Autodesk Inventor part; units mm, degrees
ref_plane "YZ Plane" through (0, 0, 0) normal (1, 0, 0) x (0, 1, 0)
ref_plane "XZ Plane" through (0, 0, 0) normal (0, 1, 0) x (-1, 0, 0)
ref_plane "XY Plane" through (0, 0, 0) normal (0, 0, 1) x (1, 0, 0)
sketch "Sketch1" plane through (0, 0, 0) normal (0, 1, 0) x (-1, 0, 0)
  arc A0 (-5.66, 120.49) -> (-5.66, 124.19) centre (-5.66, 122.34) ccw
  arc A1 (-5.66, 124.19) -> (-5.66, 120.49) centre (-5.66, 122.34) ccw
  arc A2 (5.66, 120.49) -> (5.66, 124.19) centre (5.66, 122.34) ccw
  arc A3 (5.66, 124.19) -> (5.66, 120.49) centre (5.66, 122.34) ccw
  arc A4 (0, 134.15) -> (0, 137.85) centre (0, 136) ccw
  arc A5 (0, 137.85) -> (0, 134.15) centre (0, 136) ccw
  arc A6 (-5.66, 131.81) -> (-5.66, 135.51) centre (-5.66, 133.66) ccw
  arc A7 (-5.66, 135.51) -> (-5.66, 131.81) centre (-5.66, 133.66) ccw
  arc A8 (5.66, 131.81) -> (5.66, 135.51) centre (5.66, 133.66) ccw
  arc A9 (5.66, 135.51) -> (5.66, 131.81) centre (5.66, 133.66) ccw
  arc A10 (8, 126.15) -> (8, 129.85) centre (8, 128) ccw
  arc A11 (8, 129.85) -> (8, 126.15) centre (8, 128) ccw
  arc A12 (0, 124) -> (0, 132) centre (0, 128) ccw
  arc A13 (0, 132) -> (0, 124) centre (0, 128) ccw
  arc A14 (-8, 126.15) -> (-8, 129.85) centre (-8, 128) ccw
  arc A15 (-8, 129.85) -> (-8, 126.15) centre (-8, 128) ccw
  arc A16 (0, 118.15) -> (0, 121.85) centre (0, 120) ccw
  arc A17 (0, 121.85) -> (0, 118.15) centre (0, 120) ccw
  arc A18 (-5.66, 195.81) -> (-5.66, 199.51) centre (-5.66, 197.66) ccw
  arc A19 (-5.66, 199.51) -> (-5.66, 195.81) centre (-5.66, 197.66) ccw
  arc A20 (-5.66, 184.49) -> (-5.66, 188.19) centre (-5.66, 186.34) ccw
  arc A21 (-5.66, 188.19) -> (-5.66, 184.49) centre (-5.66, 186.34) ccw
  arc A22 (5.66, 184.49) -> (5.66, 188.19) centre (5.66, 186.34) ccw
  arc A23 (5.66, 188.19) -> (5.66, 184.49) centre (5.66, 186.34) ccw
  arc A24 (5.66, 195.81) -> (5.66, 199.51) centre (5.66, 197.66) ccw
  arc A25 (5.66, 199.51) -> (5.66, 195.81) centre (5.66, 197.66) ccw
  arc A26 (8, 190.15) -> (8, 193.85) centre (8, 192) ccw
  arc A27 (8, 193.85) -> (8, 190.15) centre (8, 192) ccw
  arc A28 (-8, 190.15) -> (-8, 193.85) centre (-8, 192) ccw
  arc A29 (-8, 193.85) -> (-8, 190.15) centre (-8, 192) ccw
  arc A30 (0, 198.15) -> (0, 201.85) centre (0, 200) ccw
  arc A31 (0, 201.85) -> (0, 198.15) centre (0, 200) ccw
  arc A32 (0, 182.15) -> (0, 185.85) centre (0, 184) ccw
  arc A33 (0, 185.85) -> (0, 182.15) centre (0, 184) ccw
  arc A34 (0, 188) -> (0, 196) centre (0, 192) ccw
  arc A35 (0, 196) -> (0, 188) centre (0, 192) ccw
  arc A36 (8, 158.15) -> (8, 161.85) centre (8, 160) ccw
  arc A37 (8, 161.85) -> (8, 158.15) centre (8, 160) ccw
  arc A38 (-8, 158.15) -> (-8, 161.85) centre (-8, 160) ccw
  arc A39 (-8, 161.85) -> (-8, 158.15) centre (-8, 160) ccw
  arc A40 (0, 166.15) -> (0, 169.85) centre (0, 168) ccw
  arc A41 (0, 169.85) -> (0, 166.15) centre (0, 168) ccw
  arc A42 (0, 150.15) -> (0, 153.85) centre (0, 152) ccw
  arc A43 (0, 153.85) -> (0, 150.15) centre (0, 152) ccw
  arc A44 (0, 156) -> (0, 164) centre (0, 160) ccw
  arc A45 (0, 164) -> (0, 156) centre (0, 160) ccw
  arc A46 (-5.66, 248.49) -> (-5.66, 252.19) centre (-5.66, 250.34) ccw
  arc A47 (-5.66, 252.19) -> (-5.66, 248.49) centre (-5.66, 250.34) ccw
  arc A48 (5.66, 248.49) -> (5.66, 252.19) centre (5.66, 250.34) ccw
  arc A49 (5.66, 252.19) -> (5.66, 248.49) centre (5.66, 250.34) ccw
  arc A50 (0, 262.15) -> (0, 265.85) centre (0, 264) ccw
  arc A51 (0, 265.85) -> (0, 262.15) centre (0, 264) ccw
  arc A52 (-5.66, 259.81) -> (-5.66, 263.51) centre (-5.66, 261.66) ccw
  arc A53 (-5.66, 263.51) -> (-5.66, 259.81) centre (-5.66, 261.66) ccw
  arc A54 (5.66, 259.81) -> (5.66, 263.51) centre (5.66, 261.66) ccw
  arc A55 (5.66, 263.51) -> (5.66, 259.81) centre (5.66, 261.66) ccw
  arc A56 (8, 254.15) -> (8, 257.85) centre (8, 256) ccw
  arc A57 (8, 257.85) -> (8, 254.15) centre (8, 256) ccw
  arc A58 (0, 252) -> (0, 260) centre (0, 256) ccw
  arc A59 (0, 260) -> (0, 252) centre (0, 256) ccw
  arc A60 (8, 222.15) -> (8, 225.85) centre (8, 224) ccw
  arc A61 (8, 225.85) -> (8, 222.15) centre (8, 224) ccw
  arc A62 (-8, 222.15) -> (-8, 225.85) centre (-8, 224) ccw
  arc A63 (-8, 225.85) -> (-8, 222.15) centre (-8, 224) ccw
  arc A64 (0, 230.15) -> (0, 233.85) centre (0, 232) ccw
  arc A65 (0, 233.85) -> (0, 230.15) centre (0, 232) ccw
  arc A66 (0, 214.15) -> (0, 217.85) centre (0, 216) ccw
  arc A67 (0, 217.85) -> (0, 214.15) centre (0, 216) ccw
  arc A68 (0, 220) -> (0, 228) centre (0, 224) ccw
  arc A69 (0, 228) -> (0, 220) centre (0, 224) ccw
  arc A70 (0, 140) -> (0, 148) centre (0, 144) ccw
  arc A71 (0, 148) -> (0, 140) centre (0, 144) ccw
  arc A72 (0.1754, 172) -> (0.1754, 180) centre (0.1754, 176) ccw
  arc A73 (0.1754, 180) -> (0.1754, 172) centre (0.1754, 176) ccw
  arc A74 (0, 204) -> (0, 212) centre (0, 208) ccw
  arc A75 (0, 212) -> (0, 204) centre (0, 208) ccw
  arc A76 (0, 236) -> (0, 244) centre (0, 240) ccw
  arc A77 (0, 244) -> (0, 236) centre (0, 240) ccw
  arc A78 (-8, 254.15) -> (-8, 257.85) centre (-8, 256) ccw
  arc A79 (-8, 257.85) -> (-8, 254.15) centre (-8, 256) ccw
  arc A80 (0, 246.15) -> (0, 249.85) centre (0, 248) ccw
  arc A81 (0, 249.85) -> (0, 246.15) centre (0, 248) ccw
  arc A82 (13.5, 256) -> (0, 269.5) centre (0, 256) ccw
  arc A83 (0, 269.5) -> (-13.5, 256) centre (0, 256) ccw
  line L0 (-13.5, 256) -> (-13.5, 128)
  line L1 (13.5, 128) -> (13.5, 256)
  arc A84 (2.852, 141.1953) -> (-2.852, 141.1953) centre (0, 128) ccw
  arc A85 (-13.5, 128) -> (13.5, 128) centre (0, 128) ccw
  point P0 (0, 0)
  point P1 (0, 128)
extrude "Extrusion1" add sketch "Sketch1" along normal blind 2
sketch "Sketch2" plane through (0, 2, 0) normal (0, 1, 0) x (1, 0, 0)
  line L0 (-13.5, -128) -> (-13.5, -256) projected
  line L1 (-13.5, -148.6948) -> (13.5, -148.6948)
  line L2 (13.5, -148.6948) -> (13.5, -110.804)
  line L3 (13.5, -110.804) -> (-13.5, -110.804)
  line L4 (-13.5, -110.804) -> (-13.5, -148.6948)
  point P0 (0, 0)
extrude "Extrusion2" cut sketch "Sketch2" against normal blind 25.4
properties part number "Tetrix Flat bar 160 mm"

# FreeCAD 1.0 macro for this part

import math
import FreeCAD as App
import Part
import Sketcher
from FreeCAD import Vector


def add_polygon(sketch, points):
    """Adds a closed chain of lines whose ends are joined by coincident constraints."""
    first, n = sketch.GeometryCount, len(points)
    for a, b in zip(points, points[1:] + points[:1]):
        sketch.addGeometry(Part.LineSegment(App.Vector(*a, 0), App.Vector(*b, 0)), False)
    for i in range(n):
        sketch.addConstraint(Sketcher.Constraint("Coincident", first + i, 2, first + (i + 1) % n, 1))

doc = App.newDocument("Part")
body = doc.addObject("PartDesign::Body", "Body")

# Sketch on XZ plane
sketch1 = body.newObject("Sketcher::SketchObject", "Sketch")
sketch1.AttachmentSupport = (doc.getObject("XZ_Plane"), [""])
sketch1.MapMode = "FlatFace"
sketch1.addGeometry(Part.LineSegment(Vector(-13.5, 128, 0), Vector(-13.5, 256, 0)), False)
sketch1.addGeometry(Part.ArcOfCircle(Part.Circle(Vector(0, 256, 0), Vector(0, 0, 1), 13.5), math.radians(0), math.radians(180)), False)
sketch1.addGeometry(Part.LineSegment(Vector(13.5, 256, 0), Vector(13.5, 128, 0)), False)
sketch1.addGeometry(Part.ArcOfCircle(Part.Circle(Vector(0, 128, 0), Vector(0, 0, 1), 13.5), math.radians(180), math.radians(360)), False)
sketch1.addGeometry(Part.Circle(Vector(8, 128, 0), Vector(0, 0, 1), 1.8), False)
sketch1.addGeometry(Part.Circle(Vector(5.7, 122.3, 0), Vector(0, 0, 1), 1.8), False)
sketch1.addGeometry(Part.Circle(Vector(5.7, 133.7, 0), Vector(0, 0, 1), 1.8), False)
sketch1.addGeometry(Part.Circle(Vector(8, 160, 0), Vector(0, 0, 1), 1.8), False)
sketch1.addGeometry(Part.Circle(Vector(5.7, 186.3, 0), Vector(0, 0, 1), 1.8), False)
sketch1.addGeometry(Part.Circle(Vector(0, 120, 0), Vector(0, 0, 1), 1.8), False)
sketch1.addGeometry(Part.Circle(Vector(0, 128, 0), Vector(0, 0, 1), 4), False)
sketch1.addGeometry(Part.Circle(Vector(-5.7, 122.3, 0), Vector(0, 0, 1), 1.8), False)
sketch1.addGeometry(Part.Circle(Vector(-5.7, 133.7, 0), Vector(0, 0, 1), 1.8), False)
sketch1.addGeometry(Part.Circle(Vector(0, 136, 0), Vector(0, 0, 1), 1.8), False)
sketch1.addGeometry(Part.Circle(Vector(0, 144, 0), Vector(0, 0, 1), 4), False)
sketch1.addGeometry(Part.Circle(Vector(0, 152, 0), Vector(0, 0, 1), 1.8), False)
sketch1.addGeometry(Part.Circle(Vector(-8, 128, 0), Vector(0, 0, 1), 1.8), False)
sketch1.addGeometry(Part.Circle(Vector(0, 160, 0), Vector(0, 0, 1), 4), False)
sketch1.addGeometry(Part.Circle(Vector(0, 168, 0), Vector(0, 0, 1), 1.8), False)
sketch1.addGeometry(Part.Circle(Vector(-0.2, 176, 0), Vector(0, 0, 1), 4), False)
sketch1.addGeometry(Part.Circle(Vector(0, 184, 0), Vector(0, 0, 1), 1.8), False)
sketch1.addGeometry(Part.Circle(Vector(-5.7, 186.3, 0), Vector(0, 0, 1), 1.8), False)
sketch1.addGeometry(Part.Circle(Vector(-8, 160, 0), Vector(0, 0, 1), 1.8), False)
sketch1.addGeometry(Part.Circle(Vector(8, 192, 0), Vector(0, 0, 1), 1.8), False)
sketch1.addGeometry(Part.Circle(Vector(8, 224, 0), Vector(0, 0, 1), 1.8), False)
sketch1.addGeometry(Part.Circle(Vector(5.7, 197.7, 0), Vector(0, 0, 1), 1.8), False)
sketch1.addGeometry(Part.Circle(Vector(8, 256, 0), Vector(0, 0, 1), 1.8), False)
sketch1.addGeometry(Part.Circle(Vector(5.7, 250.3, 0), Vector(0, 0, 1), 1.8), False)
sketch1.addGeometry(Part.Circle(Vector(5.7, 261.7, 0), Vector(0, 0, 1), 1.9), False)
sketch1.addGeometry(Part.Circle(Vector(0, 192, 0), Vector(0, 0, 1), 4), False)
sketch1.addGeometry(Part.Circle(Vector(0, 200, 0), Vector(0, 0, 1), 1.8), False)
sketch1.addGeometry(Part.Circle(Vector(0, 208, 0), Vector(0, 0, 1), 4), False)
sketch1.addGeometry(Part.Circle(Vector(-5.7, 197.7, 0), Vector(0, 0, 1), 1.8), False)
sketch1.addGeometry(Part.Circle(Vector(0, 216, 0), Vector(0, 0, 1), 1.8), False)
sketch1.addGeometry(Part.Circle(Vector(0, 224, 0), Vector(0, 0, 1), 4), False)
sketch1.addGeometry(Part.Circle(Vector(-8, 192, 0), Vector(0, 0, 1), 1.8), False)
sketch1.addGeometry(Part.Circle(Vector(-8, 224, 0), Vector(0, 0, 1), 1.8), False)
sketch1.addGeometry(Part.Circle(Vector(0, 232, 0), Vector(0, 0, 1), 1.8), False)
sketch1.addGeometry(Part.Circle(Vector(0, 240, 0), Vector(0, 0, 1), 4), False)
sketch1.addGeometry(Part.Circle(Vector(0, 248, 0), Vector(0, 0, 1), 1.8), False)
sketch1.addGeometry(Part.Circle(Vector(0, 256, 0), Vector(0, 0, 1), 4), False)
sketch1.addGeometry(Part.Circle(Vector(0, 264, 0), Vector(0, 0, 1), 1.9), False)
sketch1.addGeometry(Part.Circle(Vector(-5.7, 250.3, 0), Vector(0, 0, 1), 1.8), False)
sketch1.addGeometry(Part.Circle(Vector(-5.7, 261.7, 0), Vector(0, 0, 1), 1.9), False)
sketch1.addGeometry(Part.Circle(Vector(-8, 256, 0), Vector(0, 0, 1), 1.8), False)
sketch1.addConstraint(Sketcher.Constraint("Tangent", 0, 2, 1, 2))
sketch1.addConstraint(Sketcher.Constraint("Tangent", 1, 1, 2, 1))
sketch1.addConstraint(Sketcher.Constraint("Tangent", 2, 2, 3, 2))
sketch1.addConstraint(Sketcher.Constraint("Tangent", 3, 1, 0, 1))
sketch1.addConstraint(Sketcher.Constraint("Vertical", 0))
sketch1.addConstraint(Sketcher.Constraint("Vertical", 2))
sketch1.addConstraint(Sketcher.Constraint("Coincident", 10, 3, 3, 3))
sketch1.addConstraint(Sketcher.Constraint("Coincident", 40, 3, 1, 3))
sketch1.addConstraint(Sketcher.Constraint("Equal", 4, 5))
sketch1.addConstraint(Sketcher.Constraint("Equal", 5, 6))
sketch1.addConstraint(Sketcher.Constraint("Equal", 6, 7))
sketch1.addConstraint(Sketcher.Constraint("Equal", 7, 8))
sketch1.addConstraint(Sketcher.Constraint("Equal", 8, 9))
sketch1.addConstraint(Sketcher.Constraint("Equal", 9, 11))
sketch1.addConstraint(Sketcher.Constraint("Equal", 11, 12))
sketch1.addConstraint(Sketcher.Constraint("Equal", 12, 13))
sketch1.addConstraint(Sketcher.Constraint("Equal", 10, 14))
sketch1.addConstraint(Sketcher.Constraint("Equal", 13, 15))
sketch1.addConstraint(Sketcher.Constraint("Equal", 15, 16))
sketch1.addConstraint(Sketcher.Constraint("Equal", 14, 17))
sketch1.addConstraint(Sketcher.Constraint("Equal", 16, 18))
sketch1.addConstraint(Sketcher.Constraint("Equal", 17, 19))
sketch1.addConstraint(Sketcher.Constraint("Equal", 18, 20))
sketch1.addConstraint(Sketcher.Constraint("Equal", 20, 21))
sketch1.addConstraint(Sketcher.Constraint("Equal", 21, 22))
sketch1.addConstraint(Sketcher.Constraint("Equal", 22, 23))
sketch1.addConstraint(Sketcher.Constraint("Equal", 23, 24))
sketch1.addConstraint(Sketcher.Constraint("Equal", 24, 25))
sketch1.addConstraint(Sketcher.Constraint("Equal", 25, 26))
sketch1.addConstraint(Sketcher.Constraint("Equal", 26, 27))
sketch1.addConstraint(Sketcher.Constraint("Equal", 27, 28))
sketch1.addConstraint(Sketcher.Constraint("Equal", 19, 29))
sketch1.addConstraint(Sketcher.Constraint("Equal", 28, 30))
sketch1.addConstraint(Sketcher.Constraint("Equal", 29, 31))
sketch1.addConstraint(Sketcher.Constraint("Equal", 30, 32))
sketch1.addConstraint(Sketcher.Constraint("Equal", 32, 33))
sketch1.addConstraint(Sketcher.Constraint("Equal", 31, 34))
sketch1.addConstraint(Sketcher.Constraint("Equal", 33, 35))
sketch1.addConstraint(Sketcher.Constraint("Equal", 35, 36))
sketch1.addConstraint(Sketcher.Constraint("Equal", 36, 37))
sketch1.addConstraint(Sketcher.Constraint("Equal", 34, 38))
sketch1.addConstraint(Sketcher.Constraint("Equal", 37, 39))
sketch1.addConstraint(Sketcher.Constraint("Equal", 38, 40))
sketch1.addConstraint(Sketcher.Constraint("Equal", 39, 41))
sketch1.addConstraint(Sketcher.Constraint("Equal", 41, 42))
sketch1.addConstraint(Sketcher.Constraint("Equal", 42, 43))
sketch1.addConstraint(Sketcher.Constraint("Equal", 43, 44))
sketch1.addConstraint(Sketcher.Constraint("Symmetric", 5, 3, 11, 3, -2))
sketch1.addConstraint(Sketcher.Constraint("Symmetric", 6, 3, 12, 3, -2))
sketch1.addConstraint(Sketcher.Constraint("Symmetric", 4, 3, 16, 3, -2))
sketch1.addConstraint(Sketcher.Constraint("Symmetric", 8, 3, 21, 3, -2))
sketch1.addConstraint(Sketcher.Constraint("Symmetric", 7, 3, 22, 3, -2))
sketch1.addConstraint(Sketcher.Constraint("Symmetric", 25, 3, 32, 3, -2))
sketch1.addConstraint(Sketcher.Constraint("Symmetric", 23, 3, 35, 3, -2))
sketch1.addConstraint(Sketcher.Constraint("Symmetric", 24, 3, 36, 3, -2))
sketch1.addConstraint(Sketcher.Constraint("Symmetric", 27, 3, 42, 3, -2))
sketch1.addConstraint(Sketcher.Constraint("Symmetric", 28, 3, 43, 3, -2))
sketch1.addConstraint(Sketcher.Constraint("Symmetric", 26, 3, 44, 3, -2))
sketch1.addConstraint(Sketcher.Constraint("PointOnObject", 1, 3, -2))
sketch1.addConstraint(Sketcher.Constraint("PointOnObject", 9, 3, -2))
sketch1.addConstraint(Sketcher.Constraint("PointOnObject", 13, 3, -2))
sketch1.addConstraint(Sketcher.Constraint("PointOnObject", 14, 3, -2))
sketch1.addConstraint(Sketcher.Constraint("PointOnObject", 15, 3, -2))
sketch1.addConstraint(Sketcher.Constraint("PointOnObject", 17, 3, -2))
sketch1.addConstraint(Sketcher.Constraint("PointOnObject", 18, 3, -2))
sketch1.addConstraint(Sketcher.Constraint("PointOnObject", 20, 3, -2))
sketch1.addConstraint(Sketcher.Constraint("PointOnObject", 29, 3, -2))
sketch1.addConstraint(Sketcher.Constraint("PointOnObject", 30, 3, -2))
sketch1.addConstraint(Sketcher.Constraint("PointOnObject", 31, 3, -2))
sketch1.addConstraint(Sketcher.Constraint("PointOnObject", 33, 3, -2))
sketch1.addConstraint(Sketcher.Constraint("PointOnObject", 34, 3, -2))
sketch1.addConstraint(Sketcher.Constraint("PointOnObject", 37, 3, -2))
sketch1.addConstraint(Sketcher.Constraint("PointOnObject", 38, 3, -2))
sketch1.addConstraint(Sketcher.Constraint("PointOnObject", 39, 3, -2))
sketch1.addConstraint(Sketcher.Constraint("PointOnObject", 41, 3, -2))
sketch1.addConstraint(Sketcher.Constraint("Horizontal", 3, 3, 4, 3))
sketch1.addConstraint(Sketcher.Constraint("Horizontal", 7, 3, 17, 3))
sketch1.addConstraint(Sketcher.Constraint("Horizontal", 1, 3, 26, 3))
sketch1.addConstraint(Sketcher.Constraint("Horizontal", 23, 3, 29, 3))
sketch1.addConstraint(Sketcher.Constraint("Horizontal", 24, 3, 34, 3))
sketch1.addConstraint(Sketcher.Constraint("Vertical", 5, 3, 6, 3))
sketch1.addConstraint(Sketcher.Constraint("Vertical", 4, 3, 7, 3))
sketch1.addConstraint(Sketcher.Constraint("Vertical", 6, 3, 8, 3))
sketch1.addConstraint(Sketcher.Constraint("Vertical", 7, 3, 23, 3))
sketch1.addConstraint(Sketcher.Constraint("Vertical", 23, 3, 24, 3))
sketch1.addConstraint(Sketcher.Constraint("Vertical", 8, 3, 25, 3))
sketch1.addConstraint(Sketcher.Constraint("Vertical", 24, 3, 26, 3))
sketch1.addConstraint(Sketcher.Constraint("Vertical", 25, 3, 27, 3))
sketch1.addConstraint(Sketcher.Constraint("Vertical", 27, 3, 28, 3))
sketch1.addConstraint(Sketcher.Constraint("Diameter", 10, 8.0))
sketch1.addConstraint(Sketcher.Constraint("Diameter", 4, 3.7))
sketch1.addConstraint(Sketcher.Constraint("Radius", 1, 13.5))
sketch1.addConstraint(Sketcher.Constraint("DistanceY", 0, 1, 0, 2, 128.0))
sketch1.addConstraint(Sketcher.Constraint("DistanceY", -1, 1, 1, 3, 256.0))
sketch1.addConstraint(Sketcher.Constraint("DistanceX", -1, 1, 4, 3, 8.0))
sketch1.addConstraint(Sketcher.Constraint("DistanceY", -1, 1, 7, 3, 160.0))
sketch1.addConstraint(Sketcher.Constraint("DistanceY", -1, 1, 9, 3, 120.0))
sketch1.addConstraint(Sketcher.Constraint("DistanceY", -1, 1, 13, 3, 136.0))
sketch1.addConstraint(Sketcher.Constraint("DistanceY", -1, 1, 14, 3, 144.0))
sketch1.addConstraint(Sketcher.Constraint("DistanceY", -1, 1, 15, 3, 152.0))
sketch1.addConstraint(Sketcher.Constraint("DistanceY", -1, 1, 18, 3, 168.0))
sketch1.addConstraint(Sketcher.Constraint("DistanceY", -1, 1, 19, 3, 176.0))
sketch1.addConstraint(Sketcher.Constraint("DistanceY", -1, 1, 20, 3, 184.0))
sketch1.addConstraint(Sketcher.Constraint("DistanceY", -1, 1, 23, 3, 192.0))
sketch1.addConstraint(Sketcher.Constraint("DistanceY", -1, 1, 24, 3, 224.0))
sketch1.addConstraint(Sketcher.Constraint("DistanceY", -1, 1, 30, 3, 200.0))
sketch1.addConstraint(Sketcher.Constraint("DistanceY", -1, 1, 31, 3, 208.0))
sketch1.addConstraint(Sketcher.Constraint("DistanceY", -1, 1, 33, 3, 216.0))
sketch1.addConstraint(Sketcher.Constraint("DistanceY", -1, 1, 37, 3, 232.0))
sketch1.addConstraint(Sketcher.Constraint("DistanceY", -1, 1, 38, 3, 240.0))
sketch1.addConstraint(Sketcher.Constraint("DistanceY", -1, 1, 39, 3, 248.0))
sketch1.addConstraint(Sketcher.Constraint("DistanceY", -1, 1, 41, 3, 264.0))
sketch1.addConstraint(Sketcher.Constraint("DistanceY", 5, 3, 8, 3, 64.0))
sketch1.addConstraint(Sketcher.Constraint("DistanceY", 25, 3, 28, 3, 64.0))
sketch1.addConstraint(Sketcher.Constraint("DistanceX", -1, 1, 5, 3, 5.66))
sketch1.addConstraint(Sketcher.Constraint("DistanceY", -1, 1, 5, 3, 122.34))
sketch1.addConstraint(Sketcher.Constraint("DistanceY", -1, 1, 6, 3, 133.66))
sketch1.addConstraint(Sketcher.Constraint("DistanceY", -1, 1, 25, 3, 197.66))
sketch1.addConstraint(Sketcher.Constraint("DistanceY", -1, 1, 27, 3, 250.34))
sketch1.addConstraint(Sketcher.Constraint("DistanceX", 19, 3, -1, 1, 0.1754))
pad1 = body.newObject("PartDesign::Pad", "Pad")
pad1.Profile = sketch1
pad1.Length = 2
pad1.Reversed = True

# Sketch on XZ plane
sketch2 = body.newObject("Sketcher::SketchObject", "Sketch001")
sketch2.AttachmentSupport = (doc.getObject("XZ_Plane"), [""])
sketch2.MapMode = "FlatFace"
sketch2.AttachmentOffset = App.Placement(Vector(0, 0, -2), App.Rotation())
add_polygon(sketch2, [(-14, 111), (-14, 149), (14, 149), (14, 111)])  # lines 0-3
sketch2.addConstraint(Sketcher.Constraint("Vertical", 0))
sketch2.addConstraint(Sketcher.Constraint("Horizontal", 1))
sketch2.addConstraint(Sketcher.Constraint("Vertical", 2))
sketch2.addConstraint(Sketcher.Constraint("Horizontal", 3))
sketch2.addConstraint(Sketcher.Constraint("DistanceX", 1, 1, 1, 2, 27.0))
sketch2.addConstraint(Sketcher.Constraint("DistanceX", 0, 2, -1, 1, 13.5))
sketch2.addConstraint(Sketcher.Constraint("DistanceY", 0, 1, 0, 2, 37.8908))
sketch2.addConstraint(Sketcher.Constraint("DistanceY", -1, 1, 2, 2, 110.804))
pocket1 = body.newObject("PartDesign::Pocket", "Pocket")
pocket1.Profile = sketch2
pocket1.Length = 25.4
pocket1.Reversed = True

doc.recompute()
